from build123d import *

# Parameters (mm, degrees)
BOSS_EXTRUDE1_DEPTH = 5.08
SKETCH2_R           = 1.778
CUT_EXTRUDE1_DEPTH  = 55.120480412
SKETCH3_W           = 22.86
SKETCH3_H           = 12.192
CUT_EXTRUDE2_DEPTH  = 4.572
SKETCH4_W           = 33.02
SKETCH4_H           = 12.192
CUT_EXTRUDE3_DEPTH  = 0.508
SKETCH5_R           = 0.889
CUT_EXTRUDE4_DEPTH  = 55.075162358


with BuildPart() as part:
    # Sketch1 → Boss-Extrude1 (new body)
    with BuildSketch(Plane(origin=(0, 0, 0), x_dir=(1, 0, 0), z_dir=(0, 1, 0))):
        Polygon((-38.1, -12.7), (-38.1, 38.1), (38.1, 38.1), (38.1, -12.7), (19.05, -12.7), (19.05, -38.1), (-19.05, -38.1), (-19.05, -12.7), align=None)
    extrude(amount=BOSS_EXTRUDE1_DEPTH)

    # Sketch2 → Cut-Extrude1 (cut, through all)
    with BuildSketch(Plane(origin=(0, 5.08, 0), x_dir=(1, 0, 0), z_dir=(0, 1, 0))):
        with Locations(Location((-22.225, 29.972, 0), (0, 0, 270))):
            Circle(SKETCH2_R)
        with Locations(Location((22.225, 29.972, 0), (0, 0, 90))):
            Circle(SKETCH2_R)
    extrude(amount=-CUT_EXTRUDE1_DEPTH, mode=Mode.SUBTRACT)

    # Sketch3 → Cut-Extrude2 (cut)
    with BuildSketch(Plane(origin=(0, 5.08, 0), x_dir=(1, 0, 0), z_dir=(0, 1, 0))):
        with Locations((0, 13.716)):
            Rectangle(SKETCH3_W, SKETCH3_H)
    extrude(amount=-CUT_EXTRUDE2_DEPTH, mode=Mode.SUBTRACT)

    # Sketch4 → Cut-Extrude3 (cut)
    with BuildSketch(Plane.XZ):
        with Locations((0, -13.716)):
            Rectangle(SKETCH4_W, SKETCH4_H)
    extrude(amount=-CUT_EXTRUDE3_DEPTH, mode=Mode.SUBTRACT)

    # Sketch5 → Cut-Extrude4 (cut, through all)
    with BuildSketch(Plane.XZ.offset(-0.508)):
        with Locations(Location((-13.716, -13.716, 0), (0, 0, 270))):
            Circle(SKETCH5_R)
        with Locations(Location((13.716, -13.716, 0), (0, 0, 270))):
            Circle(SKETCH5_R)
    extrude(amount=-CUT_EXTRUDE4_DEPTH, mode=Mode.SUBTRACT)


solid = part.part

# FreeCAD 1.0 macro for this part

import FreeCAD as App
import Part
import Sketcher
from FreeCAD import Vector
Q = App.Units.Quantity


def add_polygon(sketch, points):
    """Adds a closed chain of lines whose ends are joined by coincident constraints."""
    first, n = sketch.GeometryCount, len(points)
    for a, b in zip(points, points[1:] + points[:1]):
        sketch.addGeometry(Part.LineSegment(App.Vector(*a, 0), App.Vector(*b, 0)), False)
    for i in range(n):
        sketch.addConstraint(Sketcher.Constraint("Coincident", first + i, 2, first + (i + 1) % n, 1))

doc = App.newDocument("Part")
params = doc.addObject("Spreadsheet::Sheet", "Params")
for row, (alias, value) in enumerate([
    ("sketch1_width", "3 in"),
    ("sketch1_height", "2 in"),
    ("sketch1_height2", "1 in"),
    ("sketch1_width2", "1.5 in"),
    ("pad1_length", "0.2 in"),
    ("sketch2_diameter", "0.14 in"),
    ("sketch3_width", "0.9 in"),
    ("sketch3_height", "0.48 in"),
    ("pocket2_length", "0.18 in"),
    ("sketch4_width", "1.3 in"),
    ("sketch4_height", "0.48 in"),
    ("pocket3_length", "0.02 in"),
    ("sketch5_diameter", "0.07 in"),
], start=1):
    params.set(f"A{row}", alias)
    params.set(f"B{row}", "=" + value)
    params.setAlias(f"B{row}", alias)

body = doc.addObject("PartDesign::Body", "Body")

sketch1 = doc.addObject("Sketcher::SketchObject", "Sketch")
body.addObject(sketch1)
sketch1.AttachmentSupport = (doc.XZ_Plane, [""])
sketch1.MapMode = "FlatFace"
add_polygon(sketch1, [(-38, -38), (-38, 13), (-19, 13), (-19, 38), (19, 38), (19, 13), (38, 13), (38, -38)])
sketch1.addConstraint(Sketcher.Constraint("Vertical", 0))
sketch1.addConstraint(Sketcher.Constraint("Horizontal", 1))
sketch1.addConstraint(Sketcher.Constraint("Vertical", 2))
sketch1.addConstraint(Sketcher.Constraint("Horizontal", 3))
sketch1.addConstraint(Sketcher.Constraint("Vertical", 4))
sketch1.addConstraint(Sketcher.Constraint("Horizontal", 5))
sketch1.addConstraint(Sketcher.Constraint("Vertical", 6))
sketch1.addConstraint(Sketcher.Constraint("Horizontal", 7))
sketch1.addConstraint(Sketcher.Constraint("Symmetric", 1, 2, 4, 2, -2))
sketch1.addConstraint(Sketcher.Constraint("Equal", 1, 5))
sketch1.addConstraint(Sketcher.Constraint("DistanceX", 7, 2, 7, 1, Q("3 in")))
sketch1.addConstraint(Sketcher.Constraint("DistanceY", 0, 1, 0, 2, Q("2 in")))
sketch1.addConstraint(Sketcher.Constraint("DistanceY", 2, 1, 2, 2, Q("1 in")))
sketch1.addConstraint(Sketcher.Constraint("DistanceX", 3, 1, 3, 2, Q("1.5 in")))
sketch1.addConstraint(Sketcher.Constraint("DistanceY", -1, 1, 0, 2, Q("0.5 in")))
sketch1.setExpression("Constraints[18]", "Params.sketch1_width")
sketch1.setExpression("Constraints[19]", "Params.sketch1_height")
sketch1.setExpression("Constraints[20]", "Params.sketch1_height2")
sketch1.setExpression("Constraints[21]", "Params.sketch1_width2")
pad1 = doc.addObject("PartDesign::Pad", "Pad")
body.addObject(pad1)
pad1.Profile = sketch1
pad1.setExpression("Length", "Params.pad1_length")
pad1.Reversed = True

sketch2 = doc.addObject("Sketcher::SketchObject", "Sketch001")
body.addObject(sketch2)
sketch2.AttachmentSupport = (doc.XZ_Plane, [""])
sketch2.MapMode = "FlatFace"
sketch2.AttachmentOffset = App.Placement(Vector(0, 0, -0.2 * 25.4), App.Rotation())
sketch2.addGeometry(Part.Circle(Vector(-22.2, -30, 0), Vector(0, 0, 1), 1.8), False)
sketch2.addGeometry(Part.Circle(Vector(22.2, -30, 0), Vector(0, 0, 1), 1.8), False)
sketch2.addConstraint(Sketcher.Constraint("Equal", 0, 1))
sketch2.addConstraint(Sketcher.Constraint("Symmetric", 0, 3, 1, 3, -2))
sketch2.addConstraint(Sketcher.Constraint("Diameter", 0, Q("0.14 in")))
sketch2.addConstraint(Sketcher.Constraint("DistanceY", 0, 3, -1, 1, Q("1.18 in")))
sketch2.addConstraint(Sketcher.Constraint("DistanceX", 0, 3, 1, 3, Q("1.75 in")))
sketch2.setExpression("Constraints[2]", "Params.sketch2_diameter")
pocket1 = doc.addObject("PartDesign::Pocket", "Pocket")
body.addObject(pocket1)
pocket1.Profile = sketch2
pocket1.Type = "ThroughAll"
pocket1.Reversed = True

sketch3 = doc.addObject("Sketcher::SketchObject", "Sketch002")
body.addObject(sketch3)
sketch3.AttachmentSupport = (doc.XZ_Plane, [""])
sketch3.MapMode = "FlatFace"
sketch3.AttachmentOffset = App.Placement(Vector(0, 0, -0.2 * 25.4), App.Rotation())
add_polygon(sketch3, [(-11, -20), (-11, -8), (11, -8), (11, -20)])
sketch3.addConstraint(Sketcher.Constraint("Vertical", 0))
sketch3.addConstraint(Sketcher.Constraint("Horizontal", 1))
sketch3.addConstraint(Sketcher.Constraint("Vertical", 2))
sketch3.addConstraint(Sketcher.Constraint("Horizontal", 3))
sketch3.addConstraint(Sketcher.Constraint("DistanceX", 1, 1, 1, 2, Q("0.9 in")))
sketch3.addConstraint(Sketcher.Constraint("DistanceY", 0, 1, 0, 2, Q("0.48 in")))
sketch3.addConstraint(Sketcher.Constraint("DistanceY", 0, 2, -1, 1, Q("0.3 in")))
sketch3.addConstraint(Sketcher.Constraint("DistanceX", 0, 2, -1, 1, Q("0.45 in")))
sketch3.setExpression("Constraints[8]", "Params.sketch3_width")
sketch3.setExpression("Constraints[9]", "Params.sketch3_height")
pocket2 = doc.addObject("PartDesign::Pocket", "Pocket001")
body.addObject(pocket2)
pocket2.Profile = sketch3
pocket2.setExpression("Length", "Params.pocket2_length")
pocket2.Reversed = True

sketch4 = doc.addObject("Sketcher::SketchObject", "Sketch003")
body.addObject(sketch4)
sketch4.AttachmentSupport = (doc.XZ_Plane, [""])
sketch4.MapMode = "FlatFace"
add_polygon(sketch4, [(-17, -8), (-17, -20), (17, -20), (17, -8)])
sketch4.addConstraint(Sketcher.Constraint("Vertical", 0))
sketch4.addConstraint(Sketcher.Constraint("Horizontal", 1))
sketch4.addConstraint(Sketcher.Constraint("Vertical", 2))
sketch4.addConstraint(Sketcher.Constraint("Horizontal", 3))
sketch4.addConstraint(Sketcher.Constraint("DistanceX", 1, 1, 1, 2, Q("1.3 in")))
sketch4.addConstraint(Sketcher.Constraint("DistanceY", 0, 2, 0, 1, Q("0.48 in")))
sketch4.addConstraint(Sketcher.Constraint("DistanceY", 2, 2, -1, 1, Q("0.3 in")))
sketch4.addConstraint(Sketcher.Constraint("DistanceX", 0, 2, -1, 1, Q("0.65 in")))
sketch4.setExpression("Constraints[8]", "Params.sketch4_width")
sketch4.setExpression("Constraints[9]", "Params.sketch4_height")
pocket3 = doc.addObject("PartDesign::Pocket", "Pocket002")
body.addObject(pocket3)
pocket3.Profile = sketch4
pocket3.setExpression("Length", "Params.pocket3_length")

sketch5 = doc.addObject("Sketcher::SketchObject", "Sketch004")
body.addObject(sketch5)
sketch5.AttachmentSupport = (doc.XZ_Plane, [""])
sketch5.MapMode = "FlatFace"
sketch5.AttachmentOffset = App.Placement(Vector(0, 0, -0.02 * 25.4), App.Rotation())
sketch5.addGeometry(Part.Circle(Vector(-13.7, -13.7, 0), Vector(0, 0, 1), 0.9), False)
sketch5.addGeometry(Part.Circle(Vector(13.7, -13.7, 0), Vector(0, 0, 1), 0.9), False)
sketch5.addConstraint(Sketcher.Constraint("Equal", 0, 1))
sketch5.addConstraint(Sketcher.Constraint("Symmetric", 0, 3, 1, 3, -2))
sketch5.addConstraint(Sketcher.Constraint("Diameter", 0, Q("0.07 in")))
sketch5.addConstraint(Sketcher.Constraint("DistanceX", 0, 3, -1, 1, Q("0.54 in")))
sketch5.addConstraint(Sketcher.Constraint("DistanceY", 0, 3, -1, 1, Q("0.54 in")))
sketch5.setExpression("Constraints[2]", "Params.sketch5_diameter")
pocket4 = doc.addObject("PartDesign::Pocket", "Pocket003")
body.addObject(pocket4)
pocket4.Profile = sketch5
pocket4.Type = "ThroughAll"

doc.recompute()
